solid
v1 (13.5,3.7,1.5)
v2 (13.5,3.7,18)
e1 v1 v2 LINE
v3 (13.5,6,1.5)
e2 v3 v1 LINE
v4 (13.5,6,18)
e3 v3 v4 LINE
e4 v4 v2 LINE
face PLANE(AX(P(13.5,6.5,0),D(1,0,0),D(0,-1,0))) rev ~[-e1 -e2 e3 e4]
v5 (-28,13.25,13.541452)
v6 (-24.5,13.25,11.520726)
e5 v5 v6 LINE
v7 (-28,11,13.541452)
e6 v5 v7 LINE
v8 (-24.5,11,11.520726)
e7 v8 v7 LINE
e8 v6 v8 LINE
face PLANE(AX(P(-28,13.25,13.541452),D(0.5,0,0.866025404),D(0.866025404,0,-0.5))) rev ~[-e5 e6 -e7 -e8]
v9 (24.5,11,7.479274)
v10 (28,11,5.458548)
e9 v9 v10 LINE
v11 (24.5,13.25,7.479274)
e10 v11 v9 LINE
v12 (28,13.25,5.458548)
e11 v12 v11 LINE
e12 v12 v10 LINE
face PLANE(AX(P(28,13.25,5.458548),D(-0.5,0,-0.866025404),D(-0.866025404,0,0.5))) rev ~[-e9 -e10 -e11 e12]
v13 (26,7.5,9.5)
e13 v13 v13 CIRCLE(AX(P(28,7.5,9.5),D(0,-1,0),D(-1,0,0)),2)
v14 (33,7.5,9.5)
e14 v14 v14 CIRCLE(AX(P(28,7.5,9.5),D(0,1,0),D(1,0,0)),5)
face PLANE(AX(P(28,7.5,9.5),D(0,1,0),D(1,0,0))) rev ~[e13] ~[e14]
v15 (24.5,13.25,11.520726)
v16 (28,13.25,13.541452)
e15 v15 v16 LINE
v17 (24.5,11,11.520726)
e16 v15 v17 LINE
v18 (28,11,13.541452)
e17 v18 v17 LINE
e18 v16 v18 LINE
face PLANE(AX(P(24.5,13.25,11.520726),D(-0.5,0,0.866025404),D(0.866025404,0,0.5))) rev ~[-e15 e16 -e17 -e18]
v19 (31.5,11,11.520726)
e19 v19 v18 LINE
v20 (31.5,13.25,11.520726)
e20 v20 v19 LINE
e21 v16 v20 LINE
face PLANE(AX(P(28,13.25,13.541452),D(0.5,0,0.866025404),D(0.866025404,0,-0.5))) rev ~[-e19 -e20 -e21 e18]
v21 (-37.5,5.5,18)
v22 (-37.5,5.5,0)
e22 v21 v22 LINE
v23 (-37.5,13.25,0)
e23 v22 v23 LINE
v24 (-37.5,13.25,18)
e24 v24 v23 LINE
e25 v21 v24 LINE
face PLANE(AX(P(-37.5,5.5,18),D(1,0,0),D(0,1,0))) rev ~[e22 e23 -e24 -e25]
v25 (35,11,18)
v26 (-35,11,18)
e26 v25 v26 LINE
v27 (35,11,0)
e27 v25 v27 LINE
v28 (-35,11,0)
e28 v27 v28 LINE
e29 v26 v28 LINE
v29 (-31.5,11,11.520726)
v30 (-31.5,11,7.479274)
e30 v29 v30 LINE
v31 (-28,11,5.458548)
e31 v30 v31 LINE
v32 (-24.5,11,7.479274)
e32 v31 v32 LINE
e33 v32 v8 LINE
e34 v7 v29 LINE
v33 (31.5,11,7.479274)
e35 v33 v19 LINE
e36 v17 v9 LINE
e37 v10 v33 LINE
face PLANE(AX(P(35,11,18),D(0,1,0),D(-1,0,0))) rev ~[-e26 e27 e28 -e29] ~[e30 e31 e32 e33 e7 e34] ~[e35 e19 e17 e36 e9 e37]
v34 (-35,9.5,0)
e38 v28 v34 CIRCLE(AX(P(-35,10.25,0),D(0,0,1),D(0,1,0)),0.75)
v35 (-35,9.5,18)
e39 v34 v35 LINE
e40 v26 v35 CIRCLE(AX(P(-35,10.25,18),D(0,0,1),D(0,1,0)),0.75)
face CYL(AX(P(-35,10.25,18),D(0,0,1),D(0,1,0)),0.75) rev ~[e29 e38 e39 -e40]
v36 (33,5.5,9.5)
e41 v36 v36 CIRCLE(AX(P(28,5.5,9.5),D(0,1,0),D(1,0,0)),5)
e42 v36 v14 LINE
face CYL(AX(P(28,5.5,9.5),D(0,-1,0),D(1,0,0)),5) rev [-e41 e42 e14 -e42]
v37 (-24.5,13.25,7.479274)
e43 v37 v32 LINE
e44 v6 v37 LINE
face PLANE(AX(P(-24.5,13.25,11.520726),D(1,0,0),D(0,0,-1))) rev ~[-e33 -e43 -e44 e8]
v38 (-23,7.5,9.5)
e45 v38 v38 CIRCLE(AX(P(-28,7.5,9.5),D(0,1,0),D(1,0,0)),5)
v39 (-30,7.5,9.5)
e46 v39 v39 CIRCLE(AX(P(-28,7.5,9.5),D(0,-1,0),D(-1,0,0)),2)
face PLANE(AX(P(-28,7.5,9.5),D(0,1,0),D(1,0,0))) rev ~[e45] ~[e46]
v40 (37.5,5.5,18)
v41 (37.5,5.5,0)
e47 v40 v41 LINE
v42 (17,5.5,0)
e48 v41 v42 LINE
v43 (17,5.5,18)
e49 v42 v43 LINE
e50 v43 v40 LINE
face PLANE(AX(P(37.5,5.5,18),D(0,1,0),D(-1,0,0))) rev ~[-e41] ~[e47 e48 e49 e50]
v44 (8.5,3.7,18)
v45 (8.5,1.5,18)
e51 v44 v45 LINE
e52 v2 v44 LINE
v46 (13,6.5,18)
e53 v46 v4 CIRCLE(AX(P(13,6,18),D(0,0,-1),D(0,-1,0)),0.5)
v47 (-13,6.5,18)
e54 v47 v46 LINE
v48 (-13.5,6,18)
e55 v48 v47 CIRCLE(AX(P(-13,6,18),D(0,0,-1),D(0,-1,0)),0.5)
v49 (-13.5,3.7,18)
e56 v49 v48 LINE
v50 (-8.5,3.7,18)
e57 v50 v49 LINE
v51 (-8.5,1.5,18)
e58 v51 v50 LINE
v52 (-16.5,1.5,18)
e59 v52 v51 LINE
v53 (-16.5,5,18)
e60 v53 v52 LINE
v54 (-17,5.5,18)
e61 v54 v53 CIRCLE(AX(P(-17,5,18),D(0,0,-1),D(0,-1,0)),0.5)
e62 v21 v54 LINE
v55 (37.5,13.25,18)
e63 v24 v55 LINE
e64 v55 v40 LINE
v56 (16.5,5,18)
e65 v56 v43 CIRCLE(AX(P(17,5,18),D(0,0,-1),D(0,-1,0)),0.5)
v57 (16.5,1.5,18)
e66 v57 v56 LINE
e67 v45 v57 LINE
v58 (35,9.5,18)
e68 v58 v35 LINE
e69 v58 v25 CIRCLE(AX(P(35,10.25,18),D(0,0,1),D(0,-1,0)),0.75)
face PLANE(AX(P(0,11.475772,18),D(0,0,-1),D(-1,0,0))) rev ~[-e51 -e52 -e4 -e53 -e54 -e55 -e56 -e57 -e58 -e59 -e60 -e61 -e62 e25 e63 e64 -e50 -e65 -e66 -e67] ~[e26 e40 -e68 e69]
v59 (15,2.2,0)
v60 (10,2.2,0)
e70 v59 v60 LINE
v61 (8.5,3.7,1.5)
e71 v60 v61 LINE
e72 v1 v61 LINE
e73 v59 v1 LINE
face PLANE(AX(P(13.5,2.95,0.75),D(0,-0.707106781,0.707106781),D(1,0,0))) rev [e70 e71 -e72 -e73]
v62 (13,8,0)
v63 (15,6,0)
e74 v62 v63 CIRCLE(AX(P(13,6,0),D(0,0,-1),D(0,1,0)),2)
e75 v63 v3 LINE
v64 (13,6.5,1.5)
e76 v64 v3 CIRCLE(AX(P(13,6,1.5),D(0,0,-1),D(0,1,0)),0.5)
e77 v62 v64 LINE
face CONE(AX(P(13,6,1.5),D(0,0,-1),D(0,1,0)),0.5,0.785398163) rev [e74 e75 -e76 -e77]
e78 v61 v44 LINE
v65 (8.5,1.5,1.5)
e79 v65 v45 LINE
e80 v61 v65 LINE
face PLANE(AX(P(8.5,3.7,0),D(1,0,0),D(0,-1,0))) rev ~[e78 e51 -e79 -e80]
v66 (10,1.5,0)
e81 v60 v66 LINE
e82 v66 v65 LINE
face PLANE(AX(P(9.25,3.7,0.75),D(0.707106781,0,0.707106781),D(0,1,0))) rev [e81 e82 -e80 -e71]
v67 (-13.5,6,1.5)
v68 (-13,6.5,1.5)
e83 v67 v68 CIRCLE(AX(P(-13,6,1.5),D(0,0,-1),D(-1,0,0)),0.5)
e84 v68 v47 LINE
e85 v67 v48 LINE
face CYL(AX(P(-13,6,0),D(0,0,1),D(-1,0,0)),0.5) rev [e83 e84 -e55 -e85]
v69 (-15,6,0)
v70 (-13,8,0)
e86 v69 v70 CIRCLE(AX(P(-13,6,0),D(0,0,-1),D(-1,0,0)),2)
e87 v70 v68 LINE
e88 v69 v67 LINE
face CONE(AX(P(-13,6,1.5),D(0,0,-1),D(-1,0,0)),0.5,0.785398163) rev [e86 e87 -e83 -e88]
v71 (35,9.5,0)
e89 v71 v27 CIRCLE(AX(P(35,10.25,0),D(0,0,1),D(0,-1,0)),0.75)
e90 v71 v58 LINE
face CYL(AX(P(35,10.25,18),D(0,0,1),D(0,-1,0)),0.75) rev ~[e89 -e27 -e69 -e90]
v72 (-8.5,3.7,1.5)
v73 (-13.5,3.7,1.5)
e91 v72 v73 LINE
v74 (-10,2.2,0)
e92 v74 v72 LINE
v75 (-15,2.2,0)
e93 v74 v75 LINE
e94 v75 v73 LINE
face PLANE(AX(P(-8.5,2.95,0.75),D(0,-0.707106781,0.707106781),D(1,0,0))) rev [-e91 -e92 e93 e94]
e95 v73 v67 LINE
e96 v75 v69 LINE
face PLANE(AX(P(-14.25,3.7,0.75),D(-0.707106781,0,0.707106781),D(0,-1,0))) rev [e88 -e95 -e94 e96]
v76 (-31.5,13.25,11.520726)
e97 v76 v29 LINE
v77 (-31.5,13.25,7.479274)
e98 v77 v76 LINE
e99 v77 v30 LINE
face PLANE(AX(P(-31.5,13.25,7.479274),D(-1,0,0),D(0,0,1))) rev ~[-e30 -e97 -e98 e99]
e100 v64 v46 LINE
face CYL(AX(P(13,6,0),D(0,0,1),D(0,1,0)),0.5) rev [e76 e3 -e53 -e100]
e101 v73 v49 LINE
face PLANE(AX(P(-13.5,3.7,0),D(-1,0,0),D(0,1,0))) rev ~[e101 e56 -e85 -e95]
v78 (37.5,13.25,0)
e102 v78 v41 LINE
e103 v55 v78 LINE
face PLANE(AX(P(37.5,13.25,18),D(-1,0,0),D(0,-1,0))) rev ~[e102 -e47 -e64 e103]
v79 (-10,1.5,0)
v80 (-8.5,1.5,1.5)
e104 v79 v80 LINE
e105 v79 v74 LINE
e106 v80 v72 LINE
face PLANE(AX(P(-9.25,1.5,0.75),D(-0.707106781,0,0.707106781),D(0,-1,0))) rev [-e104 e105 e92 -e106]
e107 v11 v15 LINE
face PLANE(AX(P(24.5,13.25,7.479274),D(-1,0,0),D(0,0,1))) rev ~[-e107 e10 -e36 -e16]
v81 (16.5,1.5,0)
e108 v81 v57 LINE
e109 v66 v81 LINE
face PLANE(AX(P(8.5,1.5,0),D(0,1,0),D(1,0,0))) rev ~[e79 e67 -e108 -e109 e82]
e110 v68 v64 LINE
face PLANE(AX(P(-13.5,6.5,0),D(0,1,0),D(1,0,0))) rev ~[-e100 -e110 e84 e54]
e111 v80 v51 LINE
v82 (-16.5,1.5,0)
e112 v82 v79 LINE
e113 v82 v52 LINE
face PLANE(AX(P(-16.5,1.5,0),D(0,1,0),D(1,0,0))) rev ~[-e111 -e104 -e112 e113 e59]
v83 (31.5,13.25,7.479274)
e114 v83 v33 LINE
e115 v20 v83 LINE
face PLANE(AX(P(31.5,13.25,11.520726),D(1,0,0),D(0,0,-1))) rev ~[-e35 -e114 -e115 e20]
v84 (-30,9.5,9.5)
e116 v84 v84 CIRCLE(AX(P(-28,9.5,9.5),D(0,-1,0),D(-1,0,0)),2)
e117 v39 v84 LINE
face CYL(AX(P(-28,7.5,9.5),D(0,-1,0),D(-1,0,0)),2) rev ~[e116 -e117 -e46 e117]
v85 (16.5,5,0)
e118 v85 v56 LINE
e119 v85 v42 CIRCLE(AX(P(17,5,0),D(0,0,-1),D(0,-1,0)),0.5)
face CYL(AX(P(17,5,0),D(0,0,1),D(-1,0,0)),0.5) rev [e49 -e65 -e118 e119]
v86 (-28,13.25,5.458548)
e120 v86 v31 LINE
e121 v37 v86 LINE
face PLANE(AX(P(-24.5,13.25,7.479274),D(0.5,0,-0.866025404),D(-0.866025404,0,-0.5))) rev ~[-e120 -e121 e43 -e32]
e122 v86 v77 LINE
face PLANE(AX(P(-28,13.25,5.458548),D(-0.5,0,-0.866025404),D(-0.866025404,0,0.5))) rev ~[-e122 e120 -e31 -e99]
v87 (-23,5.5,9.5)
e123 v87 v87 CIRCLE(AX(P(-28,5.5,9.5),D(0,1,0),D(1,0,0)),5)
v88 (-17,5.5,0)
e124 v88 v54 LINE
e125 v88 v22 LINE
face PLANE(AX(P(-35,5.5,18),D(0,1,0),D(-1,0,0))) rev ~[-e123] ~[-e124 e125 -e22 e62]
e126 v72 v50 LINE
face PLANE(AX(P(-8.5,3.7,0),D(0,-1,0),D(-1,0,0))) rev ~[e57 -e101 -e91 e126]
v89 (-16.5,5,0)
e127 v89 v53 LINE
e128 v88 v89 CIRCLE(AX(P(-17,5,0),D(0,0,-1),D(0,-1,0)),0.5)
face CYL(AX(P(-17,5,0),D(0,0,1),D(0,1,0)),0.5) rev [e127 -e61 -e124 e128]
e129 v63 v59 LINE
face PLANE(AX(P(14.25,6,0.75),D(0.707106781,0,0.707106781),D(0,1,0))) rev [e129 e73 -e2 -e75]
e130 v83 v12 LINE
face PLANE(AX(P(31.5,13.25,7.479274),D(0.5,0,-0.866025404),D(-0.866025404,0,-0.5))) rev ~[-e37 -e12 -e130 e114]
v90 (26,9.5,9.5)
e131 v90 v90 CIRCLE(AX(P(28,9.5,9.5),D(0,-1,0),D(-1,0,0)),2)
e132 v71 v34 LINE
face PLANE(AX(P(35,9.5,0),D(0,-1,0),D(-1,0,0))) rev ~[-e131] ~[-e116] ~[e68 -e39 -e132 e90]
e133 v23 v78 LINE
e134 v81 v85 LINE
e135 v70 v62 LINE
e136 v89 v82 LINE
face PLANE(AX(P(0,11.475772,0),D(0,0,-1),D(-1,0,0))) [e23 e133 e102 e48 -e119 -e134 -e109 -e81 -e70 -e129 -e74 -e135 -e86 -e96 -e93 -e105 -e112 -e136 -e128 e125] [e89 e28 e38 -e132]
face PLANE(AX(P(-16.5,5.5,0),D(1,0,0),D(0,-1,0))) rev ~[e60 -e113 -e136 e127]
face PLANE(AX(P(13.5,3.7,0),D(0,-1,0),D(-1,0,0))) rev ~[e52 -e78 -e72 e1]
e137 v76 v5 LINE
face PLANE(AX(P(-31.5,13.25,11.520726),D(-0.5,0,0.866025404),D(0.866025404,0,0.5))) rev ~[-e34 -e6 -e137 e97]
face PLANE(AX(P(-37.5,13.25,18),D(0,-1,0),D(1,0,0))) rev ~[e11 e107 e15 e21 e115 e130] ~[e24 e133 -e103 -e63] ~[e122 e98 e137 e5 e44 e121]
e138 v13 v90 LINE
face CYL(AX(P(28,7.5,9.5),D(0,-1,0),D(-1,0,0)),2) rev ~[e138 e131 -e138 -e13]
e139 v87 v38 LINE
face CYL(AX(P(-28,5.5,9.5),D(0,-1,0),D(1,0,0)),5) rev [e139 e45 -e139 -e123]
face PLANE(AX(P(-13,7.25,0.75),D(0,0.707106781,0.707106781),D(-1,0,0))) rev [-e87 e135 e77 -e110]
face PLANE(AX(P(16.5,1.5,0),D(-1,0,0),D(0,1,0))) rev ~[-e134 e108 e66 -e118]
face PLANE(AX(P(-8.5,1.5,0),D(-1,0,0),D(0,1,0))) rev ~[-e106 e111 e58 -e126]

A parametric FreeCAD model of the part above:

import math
import FreeCAD as App
import Part
import Sketcher

V = App.Vector
Q = App.Units.Quantity


def edges_at(feature, points):
    """Names of the edges that pass closest to the given points."""
    edges = feature.Shape.Edges
    near = lambda p: min(range(len(edges)), key=lambda i: edges[i].distToShape(Part.Vertex(*p))[0])
    return sorted({f"Edge{near(p) + 1}" for p in points})


def add_polygon(sketch, points):
    """Adds a closed chain of lines whose ends are joined by coincident constraints."""
    first, n = sketch.GeometryCount, len(points)
    for a, b in zip(points, points[1:] + points[:1]):
        sketch.addGeometry(Part.LineSegment(App.Vector(*a, 0), App.Vector(*b, 0)), False)
    for i in range(n):
        sketch.addConstraint(Sketcher.Constraint("Coincident", first + i, 2, first + (i + 1) % n, 1))

doc = App.newDocument("Part")
body = doc.addObject("PartDesign::Body", "Body")

# Sketch on XY plane
sketch1 = body.newObject("Sketcher::SketchObject", "Sketch")
sketch1.AttachmentSupport = (doc.getObject("XY_Plane"), [""])
sketch1.MapMode = "FlatFace"
add_polygon(sketch1, [(-13.5, 3.7), (-13.5, 6.5), (13.5, 6.5), (13.5, 3.7), (8.5, 3.7), (8.5, 1.5), (16.5, 1.5), (16.5, 5.5), (35, 5.5), (35, 9.5), (-35, 9.5), (-35, 5.5), (-16.5, 5.5), (-16.5, 1.5), (-8.5, 1.5), (-8.5, 3.7)])  # lines 0-15
sketch1.addConstraint([
    Sketcher.Constraint("Vertical", 0),
    Sketcher.Constraint("Horizontal", 1),
    Sketcher.Constraint("Vertical", 2),
    Sketcher.Constraint("Horizontal", 3),
    Sketcher.Constraint("Vertical", 4),
    Sketcher.Constraint("Horizontal", 5),
    Sketcher.Constraint("Vertical", 6),
    Sketcher.Constraint("Horizontal", 7),
    Sketcher.Constraint("Vertical", 8),
    Sketcher.Constraint("Horizontal", 9),
    Sketcher.Constraint("Vertical", 10),
    Sketcher.Constraint("Horizontal", 11),
    Sketcher.Constraint("Vertical", 12),
    Sketcher.Constraint("Horizontal", 13),
    Sketcher.Constraint("Vertical", 14),
    Sketcher.Constraint("Horizontal", 15),
    Sketcher.Constraint("Symmetric", 7, 2, 10, 2, -2),
    Sketcher.Constraint("Symmetric", 5, 2, 12, 2, -2),
    Sketcher.Constraint("Symmetric", 3, 2, 14, 2, -2),
    Sketcher.Constraint("Equal", 3, 15),
    Sketcher.Constraint("Equal", 6, 8),
    Sketcher.Constraint("DistanceX", 1, 1, 1, 2, 27.0),
    Sketcher.Constraint("DistanceX", 3, 2, 3, 1, 5.0),
    Sketcher.Constraint("DistanceX", 5, 1, 5, 2, 8.0),
    Sketcher.Constraint("DistanceX", 9, 2, 9, 1, 70.0),
    Sketcher.Constraint("DistanceY", 6, 1, 6, 2, 4.0),
    Sketcher.Constraint("DistanceY", 0, 1, 0, 2, 2.8),
    Sketcher.Constraint("DistanceY", 4, 2, 4, 1, 2.2),
    Sketcher.Constraint("DistanceY", -1, 1, 0, 2, 6.5),
])
pad1 = body.newObject("PartDesign::Pad", "Pad")
pad1.Profile = sketch1
pad1.Length = 18

# Sketch on XZ plane
sketch2 = body.newObject("Sketcher::SketchObject", "Sketch001")
sketch2.AttachmentSupport = (doc.getObject("XZ_Plane"), [""])
sketch2.MapMode = "FlatFace"
sketch2.AttachmentOffset = App.Placement(V(0, 0, -5.5), App.Rotation())
sketch2.addGeometry([
    Part.Circle(V(-28, 10, 0), V(0, 0, 1), 5),
    Part.Circle(V(28, 10, 0), V(0, 0, 1), 5),
], False)
sketch2.addConstraint([
    Sketcher.Constraint("Equal", 0, 1),
    Sketcher.Constraint("Symmetric", 0, 3, 1, 3, -2),
    Sketcher.Constraint("Diameter", 0, 10.0),
    Sketcher.Constraint("DistanceX", 0, 3, -1, 1, 28.0),
    Sketcher.Constraint("DistanceY", -1, 1, 0, 3, 9.5),
])
pocket1 = body.newObject("PartDesign::Pocket", "Pocket")
pocket1.Profile = sketch2
pocket1.Length = 2

# Sketch on XZ plane
sketch3 = body.newObject("Sketcher::SketchObject", "Sketch002")
sketch3.AttachmentSupport = (doc.getObject("XZ_Plane"), [""])
sketch3.MapMode = "FlatFace"
sketch3.AttachmentOffset = App.Placement(V(0, 0, -7.5), App.Rotation())
sketch3.addGeometry([
    Part.Circle(V(-28, 9.5, 0), V(0, 0, 1), 2),
    Part.Circle(V(28, 9.5, 0), V(0, 0, 1), 2),
], False)
sketch3.addConstraint([
    Sketcher.Constraint("Equal", 0, 1),
    Sketcher.Constraint("Symmetric", 0, 3, 1, 3, -2),
    Sketcher.Constraint("Diameter", 0, 4.0),
    Sketcher.Constraint("DistanceX", 0, 3, -1, 1, 28.0),
    Sketcher.Constraint("DistanceY", -1, 1, 0, 3, 9.5),
])
pocket2 = body.newObject("PartDesign::Pocket", "Pocket001")
pocket2.Profile = sketch3
pocket2.Length = 2.653427
doc.recompute()

fillet = body.newObject("PartDesign::Fillet", "Fillet")
fillet.Base = (pocket2, edges_at(pocket2, [
    (-16.5, 5.5, 9),
    (16.5, 5.5, 9),
    (13.5, 6.5, 9),
    (-13.5, 6.5, 9),
]))
fillet.Radius = 0.5

# Sketch on XY plane
sketch4 = body.newObject("Sketcher::SketchObject", "Sketch003")
sketch4.AttachmentSupport = (doc.getObject("XY_Plane"), [""])
sketch4.MapMode = "FlatFace"
sketch4.AttachmentOffset = App.Placement(V(0, 0, 18), App.Rotation())
sketch4.addGeometry([
    Part.LineSegment(V(-35, 11, 0), V(35, 11, 0)),  # 0
    Part.ArcOfCircle(Part.Circle(V(35, 10.2, 0), V(0, 0, 1), 0.8), math.radians(-90), math.radians(90)),  # 1
    Part.LineSegment(V(35, 9.5, 0), V(35, 5.5, 0)),  # 2
    Part.LineSegment(V(35, 5.5, 0), V(37.5, 5.5, 0)),  # 3
    Part.LineSegment(V(37.5, 5.5, 0), V(37.5, 13.2, 0)),  # 4
    Part.LineSegment(V(37.5, 13.2, 0), V(-37.5, 13.2, 0)),  # 5
    Part.LineSegment(V(-37.5, 13.2, 0), V(-37.5, 5.5, 0)),  # 6
    Part.LineSegment(V(-37.5, 5.5, 0), V(-35, 5.5, 0)),  # 7
    Part.LineSegment(V(-35, 5.5, 0), V(-35, 9.5, 0)),  # 8
    Part.ArcOfCircle(Part.Circle(V(-35, 10.2, 0), V(0, 0, 1), 0.8), math.radians(90), math.radians(270)),  # 9
], False)
sketch4.addConstraint([
    Sketcher.Constraint("Tangent", 0, 2, 1, 2),
    Sketcher.Constraint("Coincident", 1, 1, 2, 1),
    Sketcher.Constraint("Coincident", 2, 2, 3, 1),
    Sketcher.Constraint("Coincident", 3, 2, 4, 1),
    Sketcher.Constraint("Coincident", 4, 2, 5, 1),
    Sketcher.Constraint("Coincident", 5, 2, 6, 1),
    Sketcher.Constraint("Coincident", 6, 2, 7, 1),
    Sketcher.Constraint("Coincident", 7, 2, 8, 1),
    Sketcher.Constraint("Coincident", 8, 2, 9, 2),
    Sketcher.Constraint("Tangent", 9, 1, 0, 1),
    Sketcher.Constraint("Horizontal", 0),
    Sketcher.Constraint("Vertical", 2),
    Sketcher.Constraint("Horizontal", 3),
    Sketcher.Constraint("Vertical", 4),
    Sketcher.Constraint("Horizontal", 5),
    Sketcher.Constraint("Vertical", 6),
    Sketcher.Constraint("Horizontal", 7),
    Sketcher.Constraint("Vertical", 8),
    Sketcher.Constraint("Equal", 1, 9),
    Sketcher.Constraint("Symmetric", 3, 2, 6, 2, -2),
    Sketcher.Constraint("Vertical", 0, 2, 1, 1),
    Sketcher.Constraint("Vertical", 9, 3, 7, 2),
    Sketcher.Constraint("Equal", 3, 7),
    Sketcher.Constraint("DistanceX", 0, 1, 0, 2, 70.0),
    Sketcher.Constraint("DistanceX", 5, 2, 5, 1, 75.0),
    Sketcher.Constraint("DistanceY", 2, 2, 2, 1, 4.0),
    Sketcher.Constraint("Radius", 1, 0.75),
    Sketcher.Constraint("DistanceY", -1, 1, 0, 2, 11.0),
    Sketcher.Constraint("DistanceY", 1, 3, 4, 2, 3.0),
])
pad2 = body.newObject("PartDesign::Pad", "Pad001")
pad2.Profile = sketch4
pad2.Length = 18
pad2.Reversed = True

# Sketch on XZ plane
sketch5 = body.newObject("Sketcher::SketchObject", "Sketch004")
sketch5.AttachmentSupport = (doc.getObject("XZ_Plane"), [""])
sketch5.MapMode = "FlatFace"
sketch5.AttachmentOffset = App.Placement(V(0, 0, -13.25), App.Rotation())
add_polygon(sketch5, [(-31.5, 7.5), (-31.5, 11.5), (-28, 13.5), (-24.5, 11.5), (-24.5, 7.5), (-28, 5.5)])  # lines 0-5
sketch5.addConstraint([
    Sketcher.Constraint("Vertical", 0),
    Sketcher.Constraint("Vertical", 3),
    Sketcher.Constraint("Parallel", 1, 4),
    Sketcher.Constraint("Parallel", 2, 5),
    Sketcher.Constraint("Horizontal", 0, 2, 2, 2),
    Sketcher.Constraint("Horizontal", 3, 2, 5, 2),
    Sketcher.Constraint("Vertical", 1, 2, 4, 2),
    Sketcher.Constraint("Angle", 1, Q("30 deg")),
    Sketcher.Constraint("DistanceX", 1, 2, -1, 1, 28.0),
    Sketcher.Constraint("DistanceX", 0, 2, 2, 2, 7.0),
    Sketcher.Constraint("DistanceY", 0, 1, 0, 2, 4.041452),
    Sketcher.Constraint("DistanceY", -1, 1, 1, 2, 13.541452),
])
pocket3 = body.newObject("PartDesign::Pocket", "Pocket002")
pocket3.Profile = sketch5
pocket3.Type = "UpToFirst"
pocket3.Reversed = True

# Sketch on XZ plane
sketch6 = body.newObject("Sketcher::SketchObject", "Sketch005")
sketch6.AttachmentSupport = (doc.getObject("XZ_Plane"), [""])
sketch6.MapMode = "FlatFace"
sketch6.AttachmentOffset = App.Placement(V(0, 0, -13.25), App.Rotation())
add_polygon(sketch6, [(28, 5.5), (24.5, 7.5), (24.5, 11.5), (28, 13.5), (31.5, 11.5), (31.5, 7.5)])  # lines 0-5
sketch6.addConstraint([
    Sketcher.Constraint("Vertical", 1),
    Sketcher.Constraint("Vertical", 4),
    Sketcher.Constraint("Parallel", 0, 3),
    Sketcher.Constraint("Parallel", 2, 5),
    Sketcher.Constraint("Horizontal", 1, 2, 3, 2),
    Sketcher.Constraint("Horizontal", 0, 2, 4, 2),
    Sketcher.Constraint("Vertical", 2, 2, 5, 2),
    Sketcher.Constraint("Angle", 0, Q("150 deg")),
    Sketcher.Constraint("DistanceX", -1, 1, 2, 2, 28.0),
    Sketcher.Constraint("DistanceX", 1, 2, 3, 2, 7.0),
    Sketcher.Constraint("DistanceY", 1, 1, 1, 2, 4.041452),
    Sketcher.Constraint("DistanceY", -1, 1, 2, 2, 13.541452),
])
pocket4 = body.newObject("PartDesign::Pocket", "Pocket003")
pocket4.Profile = sketch6
pocket4.Type = "UpToFirst"
pocket4.Reversed = True
doc.recompute()

chamfer = body.newObject("PartDesign::Chamfer", "Chamfer")
chamfer.Base = (pocket4, edges_at(pocket4, [
    (-8.5, 2.6, 0),
    (8.5, 2.6, 0),
    (11, 3.7, 0),
    (-13.5, 4.85, 0),
    (-11, 3.7, 0),
    (0, 6.5, 0),
    (13.5, 4.85, 0),
    (-13.354, 6.354, 0),
    (13.354, 6.354, 0),
]))
chamfer.Size = 1.5

doc.recompute()
